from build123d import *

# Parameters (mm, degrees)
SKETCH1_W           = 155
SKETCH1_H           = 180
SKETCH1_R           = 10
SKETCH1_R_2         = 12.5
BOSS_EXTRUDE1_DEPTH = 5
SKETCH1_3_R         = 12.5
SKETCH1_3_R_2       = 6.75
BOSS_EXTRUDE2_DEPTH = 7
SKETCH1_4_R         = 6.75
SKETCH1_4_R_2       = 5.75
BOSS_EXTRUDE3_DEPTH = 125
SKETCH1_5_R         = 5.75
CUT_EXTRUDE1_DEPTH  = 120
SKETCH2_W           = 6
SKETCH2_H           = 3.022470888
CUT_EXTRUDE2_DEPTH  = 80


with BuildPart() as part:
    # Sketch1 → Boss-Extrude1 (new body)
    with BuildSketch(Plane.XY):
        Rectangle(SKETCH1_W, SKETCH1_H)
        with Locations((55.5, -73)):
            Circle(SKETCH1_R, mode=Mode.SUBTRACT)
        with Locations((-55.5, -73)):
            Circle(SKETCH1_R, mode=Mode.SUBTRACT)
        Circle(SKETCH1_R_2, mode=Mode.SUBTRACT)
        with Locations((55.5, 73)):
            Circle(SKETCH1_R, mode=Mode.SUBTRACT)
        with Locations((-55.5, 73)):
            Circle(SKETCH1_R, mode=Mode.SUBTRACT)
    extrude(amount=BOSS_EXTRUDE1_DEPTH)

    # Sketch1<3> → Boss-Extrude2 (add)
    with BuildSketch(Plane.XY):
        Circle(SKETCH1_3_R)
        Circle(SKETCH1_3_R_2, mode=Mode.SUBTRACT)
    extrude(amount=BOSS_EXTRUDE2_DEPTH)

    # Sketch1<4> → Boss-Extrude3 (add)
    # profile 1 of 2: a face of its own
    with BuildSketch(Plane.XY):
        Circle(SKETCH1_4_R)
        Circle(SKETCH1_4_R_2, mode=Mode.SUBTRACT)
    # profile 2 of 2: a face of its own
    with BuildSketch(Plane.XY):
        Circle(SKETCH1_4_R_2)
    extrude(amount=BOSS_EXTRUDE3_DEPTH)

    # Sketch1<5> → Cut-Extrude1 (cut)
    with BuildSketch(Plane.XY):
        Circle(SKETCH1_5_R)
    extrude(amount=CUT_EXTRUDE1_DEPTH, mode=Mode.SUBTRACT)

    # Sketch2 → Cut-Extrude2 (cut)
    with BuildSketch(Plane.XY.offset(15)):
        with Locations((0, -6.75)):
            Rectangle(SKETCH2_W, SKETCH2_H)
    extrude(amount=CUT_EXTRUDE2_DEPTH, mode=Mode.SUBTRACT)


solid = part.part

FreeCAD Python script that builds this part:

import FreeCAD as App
import Part
import Sketcher
Q = App.Units.Quantity


def add_polygon(sketch, points):
    """Adds a closed chain of lines whose ends are joined by coincident constraints."""
    first, n = sketch.GeometryCount, len(points)
    for a, b in zip(points, points[1:] + points[:1]):
        sketch.addGeometry(Part.LineSegment(App.Vector(*a, 0), App.Vector(*b, 0)), False)
    for i in range(n):
        sketch.addConstraint(Sketcher.Constraint("Coincident", first + i, 2, first + (i + 1) % n, 1))

doc = App.newDocument("Part")
body = doc.addObject("PartDesign::Body", "Body")

# Sketch on XY plane
sketch1 = body.newObject("Sketcher::SketchObject", "Sketch")
sketch1.AttachmentSupport = (doc.getObject("XY_Plane"), [""])
sketch1.MapMode = "FlatFace"
add_polygon(sketch1, [(-78, 90), (-78, -90), (78, -90), (78, 90)])  # lines 0-3
sketch1.addGeometry(Part.Circle(App.Vector(-56, -73, 0), App.Vector(0, 0, 1), 10), False)  # 4
sketch1.addGeometry(Part.Circle(App.Vector(56, -73, 0), App.Vector(0, 0, 1), 10), False)  # 5
sketch1.addGeometry(Part.Circle(App.Vector(-56, 73, 0), App.Vector(0, 0, 1), 10), False)  # 6
sketch1.addGeometry(Part.Circle(App.Vector(0, 0, 0), App.Vector(0, 0, 1), 12), False)  # 7
sketch1.addGeometry(Part.Circle(App.Vector(56, 73, 0), App.Vector(0, 0, 1), 10), False)  # 8
sketch1.addConstraint([
    Sketcher.Constraint("Vertical", 0),
    Sketcher.Constraint("Horizontal", 1),
    Sketcher.Constraint("Vertical", 2),
    Sketcher.Constraint("Horizontal", 3),
    Sketcher.Constraint("Coincident", 7, 3, -1, 1),
    Sketcher.Constraint("Equal", 4, 5),
    Sketcher.Constraint("Equal", 5, 6),
    Sketcher.Constraint("Equal", 6, 8),
    Sketcher.Constraint("Symmetric", 5, 3, 6, 3, -1, 1),
    Sketcher.Constraint("Symmetric", 4, 3, 8, 3, -1, 1),
    Sketcher.Constraint("Symmetric", 0, 2, 2, 2, -1, 1),
    Sketcher.Constraint("Symmetric", 4, 3, 5, 3, -2),
    Sketcher.Constraint("Diameter", 4, Q("20 mm")),
    Sketcher.Constraint("Diameter", 7, Q("25 mm")),
    Sketcher.Constraint("DistanceX", 1, 1, 1, 2, Q("155 mm")),
    Sketcher.Constraint("DistanceY", 0, 2, 0, 1, Q("180 mm")),
    Sketcher.Constraint("DistanceY", 4, 3, -1, 1, Q("73 mm")),
    Sketcher.Constraint("DistanceX", 4, 3, 5, 3, Q("111 mm")),
])
pad1 = body.newObject("PartDesign::Pad", "Pad")
pad1.Profile = sketch1
pad1.Length = 5

# Sketch on XY plane
sketch2 = body.newObject("Sketcher::SketchObject", "Sketch001")
sketch2.AttachmentSupport = (doc.getObject("XY_Plane"), [""])
sketch2.MapMode = "FlatFace"
sketch2.addGeometry([
    Part.Circle(App.Vector(0, 0, 0), App.Vector(0, 0, 1), 12),
    Part.Circle(App.Vector(0, 0, 0), App.Vector(0, 0, 1), 7),
], False)
sketch2.addConstraint([
    Sketcher.Constraint("Coincident", 0, 3, -1, 1),
    Sketcher.Constraint("Coincident", 1, 3, -1, 1),
    Sketcher.Constraint("Diameter", 0, Q("25 mm")),
    Sketcher.Constraint("Diameter", 1, Q("13.5 mm")),
])
pad2 = body.newObject("PartDesign::Pad", "Pad001")
pad2.Profile = sketch2
pad2.Length = 7

# Sketch on XY plane
sketch3 = body.newObject("Sketcher::SketchObject", "Sketch002")
sketch3.AttachmentSupport = (doc.getObject("XY_Plane"), [""])
sketch3.MapMode = "FlatFace"
sketch3.addGeometry(Part.Circle(App.Vector(0, 0, 0), App.Vector(0, 0, 1), 7), False)
sketch3.addConstraint([
    Sketcher.Constraint("Coincident", 0, 3, -1, 1),
    Sketcher.Constraint("Diameter", 0, Q("13.5 mm")),
])
pad3 = body.newObject("PartDesign::Pad", "Pad002")
pad3.Profile = sketch3
pad3.Length = 125

# Sketch on XY plane
sketch4 = body.newObject("Sketcher::SketchObject", "Sketch003")
sketch4.AttachmentSupport = (doc.getObject("XY_Plane"), [""])
sketch4.MapMode = "FlatFace"
sketch4.addGeometry(Part.Circle(App.Vector(0, 0, 0), App.Vector(0, 0, 1), 6), False)
sketch4.addConstraint([
    Sketcher.Constraint("Coincident", 0, 3, -1, 1),
    Sketcher.Constraint("Diameter", 0, Q("11.5 mm")),
])
pocket1 = body.newObject("PartDesign::Pocket", "Pocket")
pocket1.Profile = sketch4
pocket1.Length = 120
pocket1.Reversed = True

# Sketch on XY plane
sketch5 = body.newObject("Sketcher::SketchObject", "Sketch004")
sketch5.AttachmentSupport = (doc.getObject("XY_Plane"), [""])
sketch5.MapMode = "FlatFace"
sketch5.AttachmentOffset = App.Placement(App.Vector(0, 0, 15), App.Rotation())
add_polygon(sketch5, [(-3, -5.2), (-3, -8.3), (3, -8.3), (3, -5.2)])  # lines 0-3
sketch5.addConstraint([
    Sketcher.Constraint("Vertical", 0),
    Sketcher.Constraint("Horizontal", 1),
    Sketcher.Constraint("Vertical", 2),
    Sketcher.Constraint("Horizontal", 3),
    Sketcher.Constraint("DistanceX", 1, 1, 1, 2, Q("6 mm")),
    Sketcher.Constraint("DistanceX", 0, 2, -1, 1, Q("3 mm")),
    Sketcher.Constraint("DistanceY", 0, 2, 0, 1, Q("3.022471 mm")),
    Sketcher.Constraint("DistanceY", 0, 2, -1, 1, Q("8.261235 mm")),
])
pocket2 = body.newObject("PartDesign::Pocket", "Pocket001")
pocket2.Profile = sketch5
pocket2.Length = 80
pocket2.Reversed = True

doc.recompute()
